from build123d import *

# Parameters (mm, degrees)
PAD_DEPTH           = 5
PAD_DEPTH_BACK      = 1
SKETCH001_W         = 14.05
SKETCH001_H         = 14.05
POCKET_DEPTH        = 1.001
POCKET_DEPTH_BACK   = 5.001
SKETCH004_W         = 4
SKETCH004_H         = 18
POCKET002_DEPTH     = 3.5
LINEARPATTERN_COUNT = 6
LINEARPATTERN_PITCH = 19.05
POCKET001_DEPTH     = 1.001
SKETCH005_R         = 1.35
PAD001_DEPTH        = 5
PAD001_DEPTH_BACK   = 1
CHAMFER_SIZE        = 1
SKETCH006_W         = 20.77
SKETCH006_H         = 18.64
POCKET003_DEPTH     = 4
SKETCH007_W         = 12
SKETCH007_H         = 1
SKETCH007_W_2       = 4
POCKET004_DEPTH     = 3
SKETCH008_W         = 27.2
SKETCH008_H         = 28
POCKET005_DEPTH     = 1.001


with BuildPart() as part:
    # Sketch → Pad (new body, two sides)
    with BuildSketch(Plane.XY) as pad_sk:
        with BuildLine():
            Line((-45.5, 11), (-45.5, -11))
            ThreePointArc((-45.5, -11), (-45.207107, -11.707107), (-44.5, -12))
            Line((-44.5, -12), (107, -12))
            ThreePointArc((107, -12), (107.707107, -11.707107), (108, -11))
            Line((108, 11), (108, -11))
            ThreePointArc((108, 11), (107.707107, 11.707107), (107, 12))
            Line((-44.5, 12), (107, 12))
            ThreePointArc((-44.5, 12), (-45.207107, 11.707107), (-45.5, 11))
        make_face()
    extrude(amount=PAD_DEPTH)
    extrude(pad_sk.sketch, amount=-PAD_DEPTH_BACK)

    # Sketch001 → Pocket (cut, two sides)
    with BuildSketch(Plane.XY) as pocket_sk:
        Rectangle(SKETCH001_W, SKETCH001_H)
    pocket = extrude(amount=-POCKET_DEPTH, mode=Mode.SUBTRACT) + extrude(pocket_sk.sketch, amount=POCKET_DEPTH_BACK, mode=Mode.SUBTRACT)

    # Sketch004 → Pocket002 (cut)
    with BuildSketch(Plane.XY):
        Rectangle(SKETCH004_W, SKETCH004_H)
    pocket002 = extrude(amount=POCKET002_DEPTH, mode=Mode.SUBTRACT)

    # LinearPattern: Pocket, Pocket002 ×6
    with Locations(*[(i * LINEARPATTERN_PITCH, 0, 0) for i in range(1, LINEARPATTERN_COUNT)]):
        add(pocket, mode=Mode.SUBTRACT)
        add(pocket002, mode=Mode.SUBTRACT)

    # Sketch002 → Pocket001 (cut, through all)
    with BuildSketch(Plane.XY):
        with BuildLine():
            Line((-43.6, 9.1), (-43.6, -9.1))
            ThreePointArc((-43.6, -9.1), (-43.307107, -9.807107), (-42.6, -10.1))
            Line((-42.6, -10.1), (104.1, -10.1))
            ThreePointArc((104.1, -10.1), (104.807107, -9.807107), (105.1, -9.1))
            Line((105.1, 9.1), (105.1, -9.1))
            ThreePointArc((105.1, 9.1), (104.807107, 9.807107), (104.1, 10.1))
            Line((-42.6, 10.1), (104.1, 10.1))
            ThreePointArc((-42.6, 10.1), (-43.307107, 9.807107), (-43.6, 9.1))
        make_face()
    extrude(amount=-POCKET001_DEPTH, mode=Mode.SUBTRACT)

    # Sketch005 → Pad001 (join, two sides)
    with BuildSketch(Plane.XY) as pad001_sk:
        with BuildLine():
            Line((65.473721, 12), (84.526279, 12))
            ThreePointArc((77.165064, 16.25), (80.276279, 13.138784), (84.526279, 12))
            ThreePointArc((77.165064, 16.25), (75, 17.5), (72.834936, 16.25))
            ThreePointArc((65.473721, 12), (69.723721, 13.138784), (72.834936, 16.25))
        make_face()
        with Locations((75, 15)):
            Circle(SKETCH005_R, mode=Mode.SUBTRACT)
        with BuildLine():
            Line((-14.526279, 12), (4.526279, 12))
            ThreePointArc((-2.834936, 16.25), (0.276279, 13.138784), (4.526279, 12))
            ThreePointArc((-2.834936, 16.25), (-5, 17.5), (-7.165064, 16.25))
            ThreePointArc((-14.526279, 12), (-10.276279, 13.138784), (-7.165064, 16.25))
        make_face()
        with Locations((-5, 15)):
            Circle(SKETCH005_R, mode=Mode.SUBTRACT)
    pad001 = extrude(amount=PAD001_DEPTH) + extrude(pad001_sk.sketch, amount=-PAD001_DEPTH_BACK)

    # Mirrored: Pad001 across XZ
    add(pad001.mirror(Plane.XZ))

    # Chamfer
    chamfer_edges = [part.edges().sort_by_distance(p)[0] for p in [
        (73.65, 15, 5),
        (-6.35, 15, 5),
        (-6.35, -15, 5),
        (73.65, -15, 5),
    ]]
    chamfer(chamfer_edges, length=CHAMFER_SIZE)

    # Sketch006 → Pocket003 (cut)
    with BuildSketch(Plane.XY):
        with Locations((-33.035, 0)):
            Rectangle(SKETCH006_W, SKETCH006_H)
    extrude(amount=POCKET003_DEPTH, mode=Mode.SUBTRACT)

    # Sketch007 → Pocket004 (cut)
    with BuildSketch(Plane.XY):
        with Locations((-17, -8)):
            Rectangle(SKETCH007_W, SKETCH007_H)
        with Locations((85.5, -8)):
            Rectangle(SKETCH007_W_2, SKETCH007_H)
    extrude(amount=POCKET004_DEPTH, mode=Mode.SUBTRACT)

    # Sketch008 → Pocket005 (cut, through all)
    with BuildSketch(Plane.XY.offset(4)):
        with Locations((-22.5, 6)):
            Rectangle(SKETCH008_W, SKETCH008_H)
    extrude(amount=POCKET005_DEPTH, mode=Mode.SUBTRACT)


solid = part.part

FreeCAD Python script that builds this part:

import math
import FreeCAD as App
import Part
import Sketcher


def edges_at(feature, points):
    """Names of the edges that pass closest to the given points."""
    edges = feature.Shape.Edges
    near = lambda p: min(range(len(edges)), key=lambda i: edges[i].distToShape(Part.Vertex(*p))[0])
    return sorted({f"Edge{near(p) + 1}" for p in points})


def add_polygon(sketch, points):
    """Adds a closed chain of lines whose ends are joined by coincident constraints."""
    first, n = sketch.GeometryCount, len(points)
    for a, b in zip(points, points[1:] + points[:1]):
        sketch.addGeometry(Part.LineSegment(App.Vector(*a, 0), App.Vector(*b, 0)), False)
    for i in range(n):
        sketch.addConstraint(Sketcher.Constraint("Coincident", first + i, 2, first + (i + 1) % n, 1))

doc = App.newDocument("Part")
body = doc.addObject("PartDesign::Body", "Body")

# Sketch on XY plane
sketch1 = doc.addObject("Sketcher::SketchObject", "Sketch")
body.addObject(sketch1)
sketch1.AttachmentSupport = (doc.XY_Plane, [""])
sketch1.MapMode = "FlatFace"
sketch1.addGeometry(Part.LineSegment(App.Vector(-45.5, 11, 0), App.Vector(-45.5, -11, 0)), False)
sketch1.addGeometry(Part.ArcOfCircle(Part.Circle(App.Vector(-44.5, -11, 0), App.Vector(0, 0, 1), 1), math.radians(180), math.radians(270)), False)
sketch1.addGeometry(Part.LineSegment(App.Vector(-44.5, -12, 0), App.Vector(107, -12, 0)), False)
sketch1.addGeometry(Part.ArcOfCircle(Part.Circle(App.Vector(107, -11, 0), App.Vector(0, 0, 1), 1), math.radians(-90), math.radians(0)), False)
sketch1.addGeometry(Part.LineSegment(App.Vector(108, -11, 0), App.Vector(108, 11, 0)), False)
sketch1.addGeometry(Part.ArcOfCircle(Part.Circle(App.Vector(107, 11, 0), App.Vector(0, 0, 1), 1), math.radians(0), math.radians(90)), False)
sketch1.addGeometry(Part.LineSegment(App.Vector(107, 12, 0), App.Vector(-44.5, 12, 0)), False)
sketch1.addGeometry(Part.ArcOfCircle(Part.Circle(App.Vector(-44.5, 11, 0), App.Vector(0, 0, 1), 1), math.radians(90), math.radians(180)), False)
sketch1.addConstraint(Sketcher.Constraint("Tangent", 0, 2, 1, 1))
sketch1.addConstraint(Sketcher.Constraint("Tangent", 1, 2, 2, 1))
sketch1.addConstraint(Sketcher.Constraint("Tangent", 2, 2, 3, 1))
sketch1.addConstraint(Sketcher.Constraint("Tangent", 3, 2, 4, 1))
sketch1.addConstraint(Sketcher.Constraint("Tangent", 4, 2, 5, 1))
sketch1.addConstraint(Sketcher.Constraint("Tangent", 5, 2, 6, 1))
sketch1.addConstraint(Sketcher.Constraint("Tangent", 6, 2, 7, 1))
sketch1.addConstraint(Sketcher.Constraint("Tangent", 7, 2, 0, 1))
sketch1.addConstraint(Sketcher.Constraint("Vertical", 0))
sketch1.addConstraint(Sketcher.Constraint("Horizontal", 2))
sketch1.addConstraint(Sketcher.Constraint("Vertical", 4))
sketch1.addConstraint(Sketcher.Constraint("Horizontal", 6))
sketch1.addConstraint(Sketcher.Constraint("Equal", 1, 3))
sketch1.addConstraint(Sketcher.Constraint("Equal", 3, 5))
sketch1.addConstraint(Sketcher.Constraint("Equal", 5, 7))
sketch1.addConstraint(Sketcher.Constraint("Radius", 1, 0.999999))
sketch1.addConstraint(Sketcher.Constraint("DistanceY", 0, 2, 0, 1, 22.0))
sketch1.addConstraint(Sketcher.Constraint("DistanceX", 2, 1, 2, 2, 151.5))
sketch1.addConstraint(Sketcher.Constraint("DistanceY", 1, 3, -1, 1, 11.000001))
sketch1.addConstraint(Sketcher.Constraint("DistanceX", -1, 1, 3, 3, 107.000001))
pad1 = doc.addObject("PartDesign::Pad", "Pad")
body.addObject(pad1)
pad1.Profile = sketch1
pad1.Type = "TwoLengths"
pad1.Length = 5
pad1.Length2 = 1

# Sketch on XY plane
sketch2 = doc.addObject("Sketcher::SketchObject", "Sketch001")
body.addObject(sketch2)
sketch2.AttachmentSupport = (doc.XY_Plane, [""])
sketch2.MapMode = "FlatFace"
add_polygon(sketch2, [(-7, 7), (-7, -7), (7, -7), (7, 7)])  # lines 0-3
sketch2.addConstraint(Sketcher.Constraint("Vertical", 0))
sketch2.addConstraint(Sketcher.Constraint("Horizontal", 1))
sketch2.addConstraint(Sketcher.Constraint("Vertical", 2))
sketch2.addConstraint(Sketcher.Constraint("Horizontal", 3))
sketch2.addConstraint(Sketcher.Constraint("Symmetric", 0, 2, 2, 2, -1, 1))
sketch2.addConstraint(Sketcher.Constraint("Equal", 3, 0))
sketch2.addConstraint(Sketcher.Constraint("DistanceX", 1, 1, 1, 2, 14.05))
pocket1 = doc.addObject("PartDesign::Pocket", "Pocket")
body.addObject(pocket1)
pocket1.Profile = sketch2
pocket1.Type = "ThroughAll"
pocket1.Midplane = True

# Sketch on XY plane
sketch3 = doc.addObject("Sketcher::SketchObject", "Sketch002")
body.addObject(sketch3)
sketch3.AttachmentSupport = (doc.XY_Plane, [""])
sketch3.MapMode = "FlatFace"
add_polygon(sketch3, [(-2, 9), (-2, -9), (2, -9), (2, 9)])  # lines 0-3
sketch3.addConstraint(Sketcher.Constraint("Vertical", 0))
sketch3.addConstraint(Sketcher.Constraint("Horizontal", 1))
sketch3.addConstraint(Sketcher.Constraint("Vertical", 2))
sketch3.addConstraint(Sketcher.Constraint("Horizontal", 3))
sketch3.addConstraint(Sketcher.Constraint("Symmetric", 0, 2, 2, 2, -1, 1))
sketch3.addConstraint(Sketcher.Constraint("DistanceX", 1, 1, 1, 2, 4.0))
sketch3.addConstraint(Sketcher.Constraint("DistanceY", 0, 2, 0, 1, 18.0))
pocket2 = doc.addObject("PartDesign::Pocket", "Pocket001")
body.addObject(pocket2)
pocket2.Profile = sketch3
pocket2.Length = 3.5
pocket2.Reversed = True
doc.recompute()

linearpattern = doc.addObject("PartDesign::LinearPattern", "LinearPattern")
body.addObject(linearpattern)
linearpattern.Originals = [pocket1, pocket2]
linearpattern.Direction = (doc.X_Axis, [""])
linearpattern.Mode = "offset"
linearpattern.Offset = 19.05
linearpattern.Occurrences = 6
body.Tip = linearpattern

# Sketch on XY plane
sketch4 = doc.addObject("Sketcher::SketchObject", "Sketch003")
body.addObject(sketch4)
sketch4.AttachmentSupport = (doc.XY_Plane, [""])
sketch4.MapMode = "FlatFace"
sketch4.addGeometry(Part.LineSegment(App.Vector(-43.6, 9.1, 0), App.Vector(-43.6, -9.1, 0)), False)
sketch4.addGeometry(Part.ArcOfCircle(Part.Circle(App.Vector(-42.6, -9.1, 0), App.Vector(0, 0, 1), 1), math.radians(180), math.radians(270)), False)
sketch4.addGeometry(Part.LineSegment(App.Vector(-42.6, -10.1, 0), App.Vector(104.1, -10.1, 0)), False)
sketch4.addGeometry(Part.ArcOfCircle(Part.Circle(App.Vector(104.1, -9.1, 0), App.Vector(0, 0, 1), 1), math.radians(-90), math.radians(0)), False)
sketch4.addGeometry(Part.LineSegment(App.Vector(105.1, -9.1, 0), App.Vector(105.1, 9.1, 0)), False)
sketch4.addGeometry(Part.ArcOfCircle(Part.Circle(App.Vector(104.1, 9.1, 0), App.Vector(0, 0, 1), 1), math.radians(0), math.radians(90)), False)
sketch4.addGeometry(Part.LineSegment(App.Vector(104.1, 10.1, 0), App.Vector(-42.6, 10.1, 0)), False)
sketch4.addGeometry(Part.ArcOfCircle(Part.Circle(App.Vector(-42.6, 9.1, 0), App.Vector(0, 0, 1), 1), math.radians(90), math.radians(180)), False)
sketch4.addConstraint(Sketcher.Constraint("Tangent", 0, 2, 1, 1))
sketch4.addConstraint(Sketcher.Constraint("Tangent", 1, 2, 2, 1))
sketch4.addConstraint(Sketcher.Constraint("Tangent", 2, 2, 3, 1))
sketch4.addConstraint(Sketcher.Constraint("Tangent", 3, 2, 4, 1))
sketch4.addConstraint(Sketcher.Constraint("Tangent", 4, 2, 5, 1))
sketch4.addConstraint(Sketcher.Constraint("Tangent", 5, 2, 6, 1))
sketch4.addConstraint(Sketcher.Constraint("Tangent", 6, 2, 7, 1))
sketch4.addConstraint(Sketcher.Constraint("Tangent", 7, 2, 0, 1))
sketch4.addConstraint(Sketcher.Constraint("Vertical", 0))
sketch4.addConstraint(Sketcher.Constraint("Horizontal", 2))
sketch4.addConstraint(Sketcher.Constraint("Vertical", 4))
sketch4.addConstraint(Sketcher.Constraint("Horizontal", 6))
sketch4.addConstraint(Sketcher.Constraint("Equal", 1, 3))
sketch4.addConstraint(Sketcher.Constraint("Equal", 3, 5))
sketch4.addConstraint(Sketcher.Constraint("Equal", 5, 7))
sketch4.addConstraint(Sketcher.Constraint("Radius", 1, 0.999999))
sketch4.addConstraint(Sketcher.Constraint("DistanceX", 2, 1, 2, 2, 146.7))
sketch4.addConstraint(Sketcher.Constraint("DistanceY", 0, 2, 0, 1, 18.2))
sketch4.addConstraint(Sketcher.Constraint("DistanceX", 1, 3, -1, 1, 42.600001))
sketch4.addConstraint(Sketcher.Constraint("DistanceY", 1, 3, -1, 1, 9.100001))
pocket3 = doc.addObject("PartDesign::Pocket", "Pocket002")
body.addObject(pocket3)
pocket3.Profile = sketch4
pocket3.Type = "ThroughAll"

# Sketch on XY plane
sketch5 = doc.addObject("Sketcher::SketchObject", "Sketch004")
body.addObject(sketch5)
sketch5.AttachmentSupport = (doc.XY_Plane, [""])
sketch5.MapMode = "FlatFace"
sketch5.addGeometry(Part.LineSegment(App.Vector(65.5, 12, 0), App.Vector(84.5, 12, 0)), False)
sketch5.addGeometry(Part.ArcOfCircle(Part.Circle(App.Vector(84.5, 20.5, 0), App.Vector(0, 0, 1), 8.5), math.radians(-150), math.radians(-90)), False)
sketch5.addGeometry(Part.ArcOfCircle(Part.Circle(App.Vector(75, 15, 0), App.Vector(0, 0, 1), 2.5), math.radians(30), math.radians(150)), False)
sketch5.addGeometry(Part.ArcOfCircle(Part.Circle(App.Vector(65.5, 20.5, 0), App.Vector(0, 0, 1), 8.5), math.radians(-90), math.radians(-30)), False)
sketch5.addGeometry(Part.Circle(App.Vector(75, 15, 0), App.Vector(0, 0, 1), 1.4), False)
sketch5.addGeometry(Part.LineSegment(App.Vector(-14.5, 12, 0), App.Vector(4.5, 12, 0)), False)
sketch5.addGeometry(Part.ArcOfCircle(Part.Circle(App.Vector(4.5, 20.5, 0), App.Vector(0, 0, 1), 8.5), math.radians(-150), math.radians(-90)), False)
sketch5.addGeometry(Part.ArcOfCircle(Part.Circle(App.Vector(-5, 15, 0), App.Vector(0, 0, 1), 2.5), math.radians(30), math.radians(150)), False)
sketch5.addGeometry(Part.ArcOfCircle(Part.Circle(App.Vector(-14.5, 20.5, 0), App.Vector(0, 0, 1), 8.5), math.radians(-90), math.radians(-30)), False)
sketch5.addGeometry(Part.Circle(App.Vector(-5, 15, 0), App.Vector(0, 0, 1), 1.4), False)
sketch5.addConstraint(Sketcher.Constraint("Tangent", 0, 2, 1, 2))
sketch5.addConstraint(Sketcher.Constraint("Tangent", 1, 1, 2, 1))
sketch5.addConstraint(Sketcher.Constraint("Tangent", 2, 2, 3, 2))
sketch5.addConstraint(Sketcher.Constraint("Tangent", 3, 1, 0, 1))
sketch5.addConstraint(Sketcher.Constraint("Tangent", 5, 2, 6, 2))
sketch5.addConstraint(Sketcher.Constraint("Tangent", 6, 1, 7, 1))
sketch5.addConstraint(Sketcher.Constraint("Tangent", 7, 2, 8, 2))
sketch5.addConstraint(Sketcher.Constraint("Tangent", 8, 1, 5, 1))
sketch5.addConstraint(Sketcher.Constraint("Horizontal", 0))
sketch5.addConstraint(Sketcher.Constraint("Horizontal", 5))
sketch5.addConstraint(Sketcher.Constraint("Coincident", 4, 3, 2, 3))
sketch5.addConstraint(Sketcher.Constraint("Coincident", 9, 3, 7, 3))
sketch5.addConstraint(Sketcher.Constraint("Equal", 1, 3))
sketch5.addConstraint(Sketcher.Constraint("Equal", 3, 6))
sketch5.addConstraint(Sketcher.Constraint("Equal", 2, 7))
sketch5.addConstraint(Sketcher.Constraint("Equal", 6, 8))
sketch5.addConstraint(Sketcher.Constraint("Equal", 4, 9))
sketch5.addConstraint(Sketcher.Constraint("Horizontal", 3, 3, 6, 3))
sketch5.addConstraint(Sketcher.Constraint("Horizontal", 4, 3, 7, 3))
sketch5.addConstraint(Sketcher.Constraint("Diameter", 4, 2.7))
sketch5.addConstraint(Sketcher.Constraint("Radius", 2, 2.500001))
sketch5.addConstraint(Sketcher.Constraint("DistanceX", -1, 1, 2, 3, 75.0))
sketch5.addConstraint(Sketcher.Constraint("DistanceY", -1, 1, 2, 3, 14.999999))
sketch5.addConstraint(Sketcher.Constraint("DistanceX", 7, 3, -1, 1, 5.0))
sketch5.addConstraint(Sketcher.Constraint("DistanceY", -1, 1, 0, 2, 12.0))
sketch5.addConstraint(Sketcher.Constraint("DistanceY", -1, 1, 1, 1, 16.25))
pad2 = doc.addObject("PartDesign::Pad", "Pad001")
body.addObject(pad2)
pad2.Profile = sketch5
pad2.Type = "TwoLengths"
pad2.Length = 5
pad2.Length2 = 1
doc.recompute()

mirrored = doc.addObject("PartDesign::Mirrored", "Mirrored")
body.addObject(mirrored)
mirrored.Originals = [pad2]
mirrored.MirrorPlane = (doc.XZ_Plane, [""])
body.Tip = mirrored
doc.recompute()

chamfer = doc.addObject("PartDesign::Chamfer", "Chamfer")
body.addObject(chamfer)
chamfer.Base = (mirrored, edges_at(mirrored, [
    (73.65, 15, 5),
    (-6.35, 15, 5),
    (-6.35, -15, 5),
    (73.65, -15, 5),
]))
chamfer.Size = 1

# Sketch on XY plane
sketch6 = doc.addObject("Sketcher::SketchObject", "Sketch005")
body.addObject(sketch6)
sketch6.AttachmentSupport = (doc.XY_Plane, [""])
sketch6.MapMode = "FlatFace"
add_polygon(sketch6, [(-43, 9), (-43, -9), (-23, -9), (-23, 9)])  # lines 0-3
sketch6.addConstraint(Sketcher.Constraint("Vertical", 0))
sketch6.addConstraint(Sketcher.Constraint("Horizontal", 1))
sketch6.addConstraint(Sketcher.Constraint("Vertical", 2))
sketch6.addConstraint(Sketcher.Constraint("Horizontal", 3))
sketch6.addConstraint(Sketcher.Constraint("DistanceX", 1, 1, 1, 2, 20.77))
sketch6.addConstraint(Sketcher.Constraint("DistanceY", 0, 2, 0, 1, 18.64))
sketch6.addConstraint(Sketcher.Constraint("DistanceX", 0, 2, -1, 1, 43.42))
sketch6.addConstraint(Sketcher.Constraint("DistanceY", 0, 2, -1, 1, 9.32))
pocket4 = doc.addObject("PartDesign::Pocket", "Pocket003")
body.addObject(pocket4)
pocket4.Profile = sketch6
pocket4.Length = 4
pocket4.Reversed = True

# Sketch on XY plane
sketch7 = doc.addObject("Sketcher::SketchObject", "Sketch006")
body.addObject(sketch7)
sketch7.AttachmentSupport = (doc.XY_Plane, [""])
sketch7.MapMode = "FlatFace"
add_polygon(sketch7, [(-23, -7.5), (-23, -8.5), (-11, -8.5), (-11, -7.5)])  # lines 0-3
add_polygon(sketch7, [(83.5, -7.5), (83.5, -8.5), (87.5, -8.5), (87.5, -7.5)])  # lines 4-7
sketch7.addConstraint(Sketcher.Constraint("Vertical", 0))
sketch7.addConstraint(Sketcher.Constraint("Horizontal", 1))
sketch7.addConstraint(Sketcher.Constraint("Vertical", 2))
sketch7.addConstraint(Sketcher.Constraint("Horizontal", 3))
sketch7.addConstraint(Sketcher.Constraint("Vertical", 4))
sketch7.addConstraint(Sketcher.Constraint("Horizontal", 5))
sketch7.addConstraint(Sketcher.Constraint("Vertical", 6))
sketch7.addConstraint(Sketcher.Constraint("Horizontal", 7))
sketch7.addConstraint(Sketcher.Constraint("Horizontal", 1, 2, 4, 2))
sketch7.addConstraint(Sketcher.Constraint("Horizontal", 3, 2, 6, 2))
sketch7.addConstraint(Sketcher.Constraint("DistanceX", 1, 1, 1, 2, 12.0))
sketch7.addConstraint(Sketcher.Constraint("DistanceX", 5, 1, 5, 2, 4.0))
sketch7.addConstraint(Sketcher.Constraint("DistanceY", 0, 2, 0, 1, 1.0))
sketch7.addConstraint(Sketcher.Constraint("DistanceX", 0, 2, -1, 1, 23.0))
sketch7.addConstraint(Sketcher.Constraint("DistanceY", 0, 2, -1, 1, 8.5))
sketch7.addConstraint(Sketcher.Constraint("DistanceX", -1, 1, 4, 2, 83.5))
pocket5 = doc.addObject("PartDesign::Pocket", "Pocket004")
body.addObject(pocket5)
pocket5.Profile = sketch7
pocket5.Length = 3
pocket5.Reversed = True

# Sketch on XY plane
sketch8 = doc.addObject("Sketcher::SketchObject", "Sketch007")
body.addObject(sketch8)
sketch8.AttachmentSupport = (doc.XY_Plane, [""])
sketch8.MapMode = "FlatFace"
sketch8.AttachmentOffset = App.Placement(App.Vector(0, 0, 4), App.Rotation())
add_polygon(sketch8, [(-36, 20), (-36, -8), (-9, -8), (-9, 20)])  # lines 0-3
sketch8.addConstraint(Sketcher.Constraint("Vertical", 0))
sketch8.addConstraint(Sketcher.Constraint("Horizontal", 1))
sketch8.addConstraint(Sketcher.Constraint("Vertical", 2))
sketch8.addConstraint(Sketcher.Constraint("Horizontal", 3))
sketch8.addConstraint(Sketcher.Constraint("DistanceY", 0, 2, 0, 1, 28.0))
sketch8.addConstraint(Sketcher.Constraint("DistanceX", 1, 1, 1, 2, 27.2))
sketch8.addConstraint(Sketcher.Constraint("DistanceY", 0, 2, -1, 1, 8.0))
sketch8.addConstraint(Sketcher.Constraint("DistanceX", 0, 2, -1, 1, 36.1))
pocket6 = doc.addObject("PartDesign::Pocket", "Pocket005")
body.addObject(pocket6)
pocket6.Profile = sketch8
pocket6.Type = "ThroughAll"
pocket6.Reversed = True

doc.recompute()
